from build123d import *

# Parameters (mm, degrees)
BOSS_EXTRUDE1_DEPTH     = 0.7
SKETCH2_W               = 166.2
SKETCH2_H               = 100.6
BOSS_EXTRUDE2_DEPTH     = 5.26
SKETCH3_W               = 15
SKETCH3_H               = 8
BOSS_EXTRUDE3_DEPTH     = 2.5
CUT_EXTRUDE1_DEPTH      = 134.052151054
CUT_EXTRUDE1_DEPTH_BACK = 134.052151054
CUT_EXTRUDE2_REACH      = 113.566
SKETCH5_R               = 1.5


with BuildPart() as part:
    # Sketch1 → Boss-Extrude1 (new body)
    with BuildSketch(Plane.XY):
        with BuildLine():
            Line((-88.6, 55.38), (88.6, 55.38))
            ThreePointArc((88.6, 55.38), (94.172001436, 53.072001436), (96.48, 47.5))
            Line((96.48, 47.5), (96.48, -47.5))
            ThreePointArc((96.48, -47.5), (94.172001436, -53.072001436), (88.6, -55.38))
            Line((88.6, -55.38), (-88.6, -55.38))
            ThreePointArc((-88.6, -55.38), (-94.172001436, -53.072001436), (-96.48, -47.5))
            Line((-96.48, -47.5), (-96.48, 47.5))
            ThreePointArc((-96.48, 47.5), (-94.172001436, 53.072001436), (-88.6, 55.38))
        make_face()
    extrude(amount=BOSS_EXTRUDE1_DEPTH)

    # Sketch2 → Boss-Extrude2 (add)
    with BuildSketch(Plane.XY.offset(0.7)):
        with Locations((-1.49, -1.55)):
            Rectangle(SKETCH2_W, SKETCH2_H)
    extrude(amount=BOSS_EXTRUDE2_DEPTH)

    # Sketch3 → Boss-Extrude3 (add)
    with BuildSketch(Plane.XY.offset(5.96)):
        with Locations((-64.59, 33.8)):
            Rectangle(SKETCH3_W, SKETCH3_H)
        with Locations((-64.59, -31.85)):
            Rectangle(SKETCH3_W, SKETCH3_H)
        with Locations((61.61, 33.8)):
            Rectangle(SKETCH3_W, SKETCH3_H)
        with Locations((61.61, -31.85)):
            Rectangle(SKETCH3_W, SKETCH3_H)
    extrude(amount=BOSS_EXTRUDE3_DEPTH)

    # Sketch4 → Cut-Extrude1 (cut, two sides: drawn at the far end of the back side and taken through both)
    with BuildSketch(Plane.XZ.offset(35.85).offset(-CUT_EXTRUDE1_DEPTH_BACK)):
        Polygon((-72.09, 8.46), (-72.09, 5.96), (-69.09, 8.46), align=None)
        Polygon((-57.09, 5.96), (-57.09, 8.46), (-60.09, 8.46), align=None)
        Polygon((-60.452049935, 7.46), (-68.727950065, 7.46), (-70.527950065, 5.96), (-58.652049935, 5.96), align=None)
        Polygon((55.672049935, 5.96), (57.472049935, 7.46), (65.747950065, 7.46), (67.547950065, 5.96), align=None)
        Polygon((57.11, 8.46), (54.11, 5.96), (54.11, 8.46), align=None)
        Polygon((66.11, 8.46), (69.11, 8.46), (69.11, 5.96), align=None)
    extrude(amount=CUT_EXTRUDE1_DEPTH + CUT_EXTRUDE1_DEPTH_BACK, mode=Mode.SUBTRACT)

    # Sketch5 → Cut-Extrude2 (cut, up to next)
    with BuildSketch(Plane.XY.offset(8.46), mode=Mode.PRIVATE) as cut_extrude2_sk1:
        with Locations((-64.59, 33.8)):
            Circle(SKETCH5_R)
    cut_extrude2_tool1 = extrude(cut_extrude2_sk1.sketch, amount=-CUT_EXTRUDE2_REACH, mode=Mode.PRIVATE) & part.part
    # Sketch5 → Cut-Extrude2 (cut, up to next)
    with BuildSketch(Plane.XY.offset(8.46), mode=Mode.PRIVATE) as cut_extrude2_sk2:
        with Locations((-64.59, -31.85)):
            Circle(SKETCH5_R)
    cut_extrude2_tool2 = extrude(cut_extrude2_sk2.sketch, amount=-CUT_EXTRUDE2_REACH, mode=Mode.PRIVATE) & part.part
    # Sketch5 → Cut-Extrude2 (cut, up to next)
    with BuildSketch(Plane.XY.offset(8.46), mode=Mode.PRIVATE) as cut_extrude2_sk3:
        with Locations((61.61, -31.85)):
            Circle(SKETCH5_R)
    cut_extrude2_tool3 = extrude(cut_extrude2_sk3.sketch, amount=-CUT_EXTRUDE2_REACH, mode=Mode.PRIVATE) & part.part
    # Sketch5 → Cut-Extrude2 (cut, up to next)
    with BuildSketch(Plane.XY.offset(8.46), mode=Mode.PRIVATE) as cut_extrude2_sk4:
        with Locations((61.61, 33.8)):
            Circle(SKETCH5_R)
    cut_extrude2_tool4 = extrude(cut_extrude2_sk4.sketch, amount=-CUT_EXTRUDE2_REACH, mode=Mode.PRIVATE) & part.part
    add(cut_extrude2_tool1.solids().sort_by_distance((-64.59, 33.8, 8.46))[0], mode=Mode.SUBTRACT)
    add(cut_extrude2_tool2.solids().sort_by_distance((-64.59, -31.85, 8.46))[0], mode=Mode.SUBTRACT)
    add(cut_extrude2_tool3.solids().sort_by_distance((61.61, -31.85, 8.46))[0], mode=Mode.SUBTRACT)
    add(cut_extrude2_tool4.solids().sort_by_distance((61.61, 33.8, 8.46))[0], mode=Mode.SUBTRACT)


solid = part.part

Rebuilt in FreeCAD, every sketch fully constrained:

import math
import FreeCAD as App
import Part
import Sketcher
from FreeCAD import Vector
Q = App.Units.Quantity

doc = App.newDocument("Part")
params = doc.addObject("Spreadsheet::Sheet", "Params")
for row, (alias, value) in enumerate([
    ("sketch1_height", "95 mm"),
    ("sketch1_radius", "7.88 mm"),
    ("sketch1_width", "177.2 mm"),
    ("pad1_length", "0.7 mm"),
    ("sketch2_width", "166.2 mm"),
    ("sketch2_height", "100.6 mm"),
    ("pad2_length", "5.26 mm"),
    ("sketch3_width", "15 mm"),
    ("sketch3_height", "8 mm"),
    ("pad3_length", "2.5 mm"),
    ("sketch4_width", "3 mm"),
    ("sketch4_height", "2.5 mm"),
    ("sketch5_diameter", "3 mm"),
    ("sketch6_diameter", "3 mm"),
    ("sketch7_diameter", "3 mm"),
    ("sketch8_diameter", "3 mm"),
], start=1):
    params.set(f"A{row}", alias)
    params.set(f"B{row}", "=" + value)
    params.setAlias(f"B{row}", alias)

body = doc.addObject("PartDesign::Body", "Body")

sketch1 = body.newObject("Sketcher::SketchObject", "Sketch")
sketch1.AttachmentSupport = (doc.getObject("XY_Plane"), [""])
sketch1.MapMode = "FlatFace"
sketch1.addGeometry([
    Part.LineSegment(Vector(89, 55, 0), Vector(-89, 55, 0)),
    Part.ArcOfCircle(Part.Circle(Vector(-89, 48, 0), Vector(0, 0, 1), 8), math.radians(90), math.radians(180)),
    Part.LineSegment(Vector(-96, 48, 0), Vector(-96, -48, 0)),
    Part.ArcOfCircle(Part.Circle(Vector(-89, -48, 0), Vector(0, 0, 1), 8), math.radians(180), math.radians(270)),
    Part.LineSegment(Vector(-89, -55, 0), Vector(89, -55, 0)),
    Part.ArcOfCircle(Part.Circle(Vector(89, -48, 0), Vector(0, 0, 1), 8), math.radians(-90), math.radians(0)),
    Part.LineSegment(Vector(96, -48, 0), Vector(96, 48, 0)),
    Part.ArcOfCircle(Part.Circle(Vector(89, 48, 0), Vector(0, 0, 1), 8), math.radians(0), math.radians(90)),
], False)
sketch1.addConstraint([
    Sketcher.Constraint("Tangent", 0, 2, 1, 1),
    Sketcher.Constraint("Tangent", 1, 2, 2, 1),
    Sketcher.Constraint("Tangent", 2, 2, 3, 1),
    Sketcher.Constraint("Tangent", 3, 2, 4, 1),
    Sketcher.Constraint("Tangent", 4, 2, 5, 1),
    Sketcher.Constraint("Tangent", 5, 2, 6, 1),
    Sketcher.Constraint("Tangent", 6, 2, 7, 1),
    Sketcher.Constraint("Tangent", 7, 2, 0, 1),
    Sketcher.Constraint("Horizontal", 0),
    Sketcher.Constraint("Vertical", 2),
    Sketcher.Constraint("Horizontal", 4),
    Sketcher.Constraint("Vertical", 6),
    Sketcher.Constraint("Equal", 1, 3),
    Sketcher.Constraint("Equal", 3, 5),
    Sketcher.Constraint("Equal", 5, 7),
    Sketcher.Constraint("Symmetric", 1, 3, 5, 3, -1, 1),
    Sketcher.Constraint("DistanceY", 2, 2, 2, 1, Q("95 mm")),
    Sketcher.Constraint("Radius", 1, Q("7.88 mm")),
    Sketcher.Constraint("DistanceX", 0, 2, 0, 1, Q("177.2 mm")),
])
sketch1.setExpression("Constraints[16]", "Params.sketch1_height")
sketch1.setExpression("Constraints[17]", "Params.sketch1_radius")
sketch1.setExpression("Constraints[18]", "Params.sketch1_width")
pad1 = body.newObject("PartDesign::Pad", "Pad")
pad1.Profile = sketch1
pad1.setExpression("Length", "Params.pad1_length")

sketch2 = body.newObject("Sketcher::SketchObject", "Sketch001")
sketch2.AttachmentSupport = (doc.getObject("XY_Plane"), [""])
sketch2.MapMode = "FlatFace"
sketch2.AttachmentOffset = App.Placement(Vector(0, 0, 0.7), App.Rotation())
sketch2.addGeometry([
    Part.LineSegment(Vector(-85, 49, 0), Vector(-85, -52, 0)),
    Part.LineSegment(Vector(-85, -52, 0), Vector(82, -52, 0)),
    Part.LineSegment(Vector(82, -52, 0), Vector(82, 49, 0)),
    Part.LineSegment(Vector(82, 49, 0), Vector(-85, 49, 0)),
], False)
sketch2.addConstraint([
    Sketcher.Constraint("Coincident", 0, 2, 1, 1),
    Sketcher.Constraint("Coincident", 1, 2, 2, 1),
    Sketcher.Constraint("Coincident", 2, 2, 3, 1),
    Sketcher.Constraint("Coincident", 3, 2, 0, 1),
    Sketcher.Constraint("Vertical", 0),
    Sketcher.Constraint("Horizontal", 1),
    Sketcher.Constraint("Vertical", 2),
    Sketcher.Constraint("Horizontal", 3),
    Sketcher.Constraint("DistanceX", 1, 1, 1, 2, Q("166.2 mm")),
    Sketcher.Constraint("DistanceY", 0, 2, 0, 1, Q("100.6 mm")),
    Sketcher.Constraint("DistanceX", 0, 2, -1, 1, Q("84.59 mm")),
    Sketcher.Constraint("DistanceY", 0, 2, -1, 1, Q("51.85 mm")),
])
sketch2.setExpression("Constraints[8]", "Params.sketch2_width")
sketch2.setExpression("Constraints[9]", "Params.sketch2_height")
pad2 = body.newObject("PartDesign::Pad", "Pad001")
pad2.Profile = sketch2
pad2.setExpression("Length", "Params.pad2_length")

sketch3 = body.newObject("Sketcher::SketchObject", "Sketch002")
sketch3.AttachmentSupport = (doc.getObject("XY_Plane"), [""])
sketch3.MapMode = "FlatFace"
sketch3.AttachmentOffset = App.Placement(Vector(0, 0, 5.96), App.Rotation())
sketch3.addGeometry([
    Part.LineSegment(Vector(-72, 38, 0), Vector(-72, 30, 0)),
    Part.LineSegment(Vector(-72, 30, 0), Vector(-57, 30, 0)),
    Part.LineSegment(Vector(-57, 30, 0), Vector(-57, 38, 0)),
    Part.LineSegment(Vector(-57, 38, 0), Vector(-72, 38, 0)),
    Part.LineSegment(Vector(-72, -28, 0), Vector(-72, -36, 0)),
    Part.LineSegment(Vector(-72, -36, 0), Vector(-57, -36, 0)),
    Part.LineSegment(Vector(-57, -36, 0), Vector(-57, -28, 0)),
    Part.LineSegment(Vector(-57, -28, 0), Vector(-72, -28, 0)),
    Part.LineSegment(Vector(54, 38, 0), Vector(54, 30, 0)),
    Part.LineSegment(Vector(54, 30, 0), Vector(69, 30, 0)),
    Part.LineSegment(Vector(69, 30, 0), Vector(69, 38, 0)),
    Part.LineSegment(Vector(69, 38, 0), Vector(54, 38, 0)),
    Part.LineSegment(Vector(54, -28, 0), Vector(54, -36, 0)),
    Part.LineSegment(Vector(54, -36, 0), Vector(69, -36, 0)),
    Part.LineSegment(Vector(69, -36, 0), Vector(69, -28, 0)),
    Part.LineSegment(Vector(69, -28, 0), Vector(54, -28, 0)),
], False)
sketch3.addConstraint([
    Sketcher.Constraint("Coincident", 0, 2, 1, 1),
    Sketcher.Constraint("Coincident", 1, 2, 2, 1),
    Sketcher.Constraint("Coincident", 2, 2, 3, 1),
    Sketcher.Constraint("Coincident", 3, 2, 0, 1),
    Sketcher.Constraint("Coincident", 4, 2, 5, 1),
    Sketcher.Constraint("Coincident", 5, 2, 6, 1),
    Sketcher.Constraint("Coincident", 6, 2, 7, 1),
    Sketcher.Constraint("Coincident", 7, 2, 4, 1),
    Sketcher.Constraint("Coincident", 8, 2, 9, 1),
    Sketcher.Constraint("Coincident", 9, 2, 10, 1),
    Sketcher.Constraint("Coincident", 10, 2, 11, 1),
    Sketcher.Constraint("Coincident", 11, 2, 8, 1),
    Sketcher.Constraint("Coincident", 12, 2, 13, 1),
    Sketcher.Constraint("Coincident", 13, 2, 14, 1),
    Sketcher.Constraint("Coincident", 14, 2, 15, 1),
    Sketcher.Constraint("Coincident", 15, 2, 12, 1),
    Sketcher.Constraint("Vertical", 0),
    Sketcher.Constraint("Horizontal", 1),
    Sketcher.Constraint("Vertical", 2),
    Sketcher.Constraint("Horizontal", 3),
    Sketcher.Constraint("Vertical", 4),
    Sketcher.Constraint("Horizontal", 5),
    Sketcher.Constraint("Vertical", 6),
    Sketcher.Constraint("Horizontal", 7),
    Sketcher.Constraint("Vertical", 8),
    Sketcher.Constraint("Horizontal", 9),
    Sketcher.Constraint("Vertical", 10),
    Sketcher.Constraint("Horizontal", 11),
    Sketcher.Constraint("Vertical", 12),
    Sketcher.Constraint("Horizontal", 13),
    Sketcher.Constraint("Vertical", 14),
    Sketcher.Constraint("Horizontal", 15),
    Sketcher.Constraint("Horizontal", 1, 2, 8, 2),
    Sketcher.Constraint("Horizontal", 3, 2, 10, 2),
    Sketcher.Constraint("Horizontal", 5, 2, 12, 2),
    Sketcher.Constraint("Horizontal", 7, 2, 14, 2),
    Sketcher.Constraint("Vertical", 3, 2, 4, 2),
    Sketcher.Constraint("Vertical", 2, 2, 5, 2),
    Sketcher.Constraint("Vertical", 11, 2, 12, 2),
    Sketcher.Constraint("Vertical", 10, 2, 13, 2),
    Sketcher.Constraint("Equal", 7, 9),
    Sketcher.Constraint("Equal", 2, 4),
    Sketcher.Constraint("DistanceX", 1, 1, 1, 2, Q("15 mm")),
    Sketcher.Constraint("DistanceY", 0, 2, 0, 1, Q("8 mm")),
    Sketcher.Constraint("DistanceY", -1, 1, 0, 2, Q("29.8 mm")),
    Sketcher.Constraint("DistanceX", 1, 2, 8, 2, Q("111.2 mm")),
    Sketcher.Constraint("DistanceX", 0, 2, -1, 1, Q("72.09 mm")),
    Sketcher.Constraint("DistanceY", 4, 2, -1, 1, Q("35.85 mm")),
])
sketch3.setExpression("Constraints[42]", "Params.sketch3_width")
sketch3.setExpression("Constraints[43]", "Params.sketch3_height")
pad3 = body.newObject("PartDesign::Pad", "Pad002")
pad3.Profile = sketch3
pad3.setExpression("Length", "Params.pad3_length")

sketch4 = body.newObject("Sketcher::SketchObject", "Sketch003")
sketch4.AttachmentSupport = (doc.getObject("XZ_Plane"), [""])
sketch4.MapMode = "FlatFace"
sketch4.AttachmentOffset = App.Placement(Vector(0, 0, 35.85), App.Rotation())
sketch4.addGeometry([
    Part.LineSegment(Vector(-72.1, 8.5, 0), Vector(-72.1, 6, 0)),
    Part.LineSegment(Vector(-72.1, 6, 0), Vector(-69.1, 8.5, 0)),
    Part.LineSegment(Vector(-69.1, 8.5, 0), Vector(-72.1, 8.5, 0)),
    Part.LineSegment(Vector(-57.1, 6, 0), Vector(-57.1, 8.5, 0)),
    Part.LineSegment(Vector(-57.1, 8.5, 0), Vector(-60.1, 8.5, 0)),
    Part.LineSegment(Vector(-60.1, 8.5, 0), Vector(-57.1, 6, 0)),
    Part.LineSegment(Vector(-60.5, 7.5, 0), Vector(-68.7, 7.5, 0)),
    Part.LineSegment(Vector(-68.7, 7.5, 0), Vector(-70.5, 6, 0)),
    Part.LineSegment(Vector(-70.5, 6, 0), Vector(-58.7, 6, 0)),
    Part.LineSegment(Vector(-58.7, 6, 0), Vector(-60.5, 7.5, 0)),
    Part.LineSegment(Vector(57.5, 7.5, 0), Vector(55.7, 6, 0)),
    Part.LineSegment(Vector(55.7, 6, 0), Vector(67.5, 6, 0)),
    Part.LineSegment(Vector(67.5, 6, 0), Vector(65.7, 7.5, 0)),
    Part.LineSegment(Vector(65.7, 7.5, 0), Vector(57.5, 7.5, 0)),
    Part.LineSegment(Vector(54.1, 6, 0), Vector(57.1, 8.5, 0)),
    Part.LineSegment(Vector(57.1, 8.5, 0), Vector(54.1, 8.5, 0)),
    Part.LineSegment(Vector(54.1, 8.5, 0), Vector(54.1, 6, 0)),
    Part.LineSegment(Vector(69.1, 8.5, 0), Vector(66.1, 8.5, 0)),
    Part.LineSegment(Vector(66.1, 8.5, 0), Vector(69.1, 6, 0)),
    Part.LineSegment(Vector(69.1, 6, 0), Vector(69.1, 8.5, 0)),
], False)
sketch4.addConstraint([
    Sketcher.Constraint("Coincident", 0, 2, 1, 1),
    Sketcher.Constraint("Coincident", 1, 2, 2, 1),
    Sketcher.Constraint("Coincident", 2, 2, 0, 1),
    Sketcher.Constraint("Coincident", 3, 2, 4, 1),
    Sketcher.Constraint("Coincident", 4, 2, 5, 1),
    Sketcher.Constraint("Coincident", 5, 2, 3, 1),
    Sketcher.Constraint("Coincident", 6, 2, 7, 1),
    Sketcher.Constraint("Coincident", 7, 2, 8, 1),
    Sketcher.Constraint("Coincident", 8, 2, 9, 1),
    Sketcher.Constraint("Coincident", 9, 2, 6, 1),
    Sketcher.Constraint("Coincident", 10, 2, 11, 1),
    Sketcher.Constraint("Coincident", 11, 2, 12, 1),
    Sketcher.Constraint("Coincident", 12, 2, 13, 1),
    Sketcher.Constraint("Coincident", 13, 2, 10, 1),
    Sketcher.Constraint("Coincident", 14, 2, 15, 1),
    Sketcher.Constraint("Coincident", 15, 2, 16, 1),
    Sketcher.Constraint("Coincident", 16, 2, 14, 1),
    Sketcher.Constraint("Coincident", 17, 2, 18, 1),
    Sketcher.Constraint("Coincident", 18, 2, 19, 1),
    Sketcher.Constraint("Coincident", 19, 2, 17, 1),
    Sketcher.Constraint("Vertical", 0),
    Sketcher.Constraint("Horizontal", 2),
    Sketcher.Constraint("Vertical", 3),
    Sketcher.Constraint("Horizontal", 4),
    Sketcher.Constraint("Horizontal", 6),
    Sketcher.Constraint("Horizontal", 8),
    Sketcher.Constraint("Horizontal", 11),
    Sketcher.Constraint("Horizontal", 13),
    Sketcher.Constraint("Horizontal", 15),
    Sketcher.Constraint("Vertical", 16),
    Sketcher.Constraint("Horizontal", 17),
    Sketcher.Constraint("Vertical", 19),
    Sketcher.Constraint("Parallel", 1, 7),
    Sketcher.Constraint("Parallel", 5, 9),
    Sketcher.Constraint("Parallel", 7, 10),
    Sketcher.Constraint("Parallel", 9, 12),
    Sketcher.Constraint("Parallel", 10, 14),
    Sketcher.Constraint("Parallel", 12, 18),
    Sketcher.Constraint("Horizontal", 2, 2, 3, 2),
    Sketcher.Constraint("Horizontal", 0, 2, 5, 2),
    Sketcher.Constraint("Horizontal", 5, 2, 7, 2),
    Sketcher.Constraint("Horizontal", 8, 2, 10, 2),
    Sketcher.Constraint("Horizontal", 9, 2, 12, 2),
    Sketcher.Constraint("Horizontal", 4, 2, 14, 2),
    Sketcher.Constraint("Horizontal", 11, 2, 16, 2),
    Sketcher.Constraint("Horizontal", 15, 2, 17, 2),
    Sketcher.Constraint("Horizontal", 16, 2, 18, 2),
    Sketcher.Constraint("Equal", 2, 4),
    Sketcher.Constraint("Equal", 8, 11),
    Sketcher.Constraint("DistanceX", 2, 2, 2, 1, Q("3 mm")),
    Sketcher.Constraint("DistanceY", 0, 2, 0, 1, Q("2.5 mm")),
    Sketcher.Constraint("DistanceX", 1, 2, 3, 2, Q("12 mm")),
    Sketcher.Constraint("DistanceY", 6, 2, 1, 2, Q("1 mm")),
    Sketcher.Constraint("DistanceX", 14, 2, 17, 2, Q("9 mm")),
    Sketcher.Constraint("DistanceX", 8, 2, 11, 2, Q("126.2 mm")),
    Sketcher.Constraint("DistanceX", 3, 2, 14, 2, Q("114.2 mm")),
    Sketcher.Constraint("DistanceX", 0, 2, -1, 1, Q("72.09 mm")),
    Sketcher.Constraint("DistanceY", -1, 1, 0, 2, Q("5.96 mm")),
    Sketcher.Constraint("DistanceX", 6, 2, 6, 1, Q("8.2759 mm")),
    Sketcher.Constraint("DistanceX", 6, 2, -1, 1, Q("68.72795 mm")),
])
sketch4.setExpression("Constraints[49]", "Params.sketch4_width")
sketch4.setExpression("Constraints[50]", "Params.sketch4_height")
pocket1 = body.newObject("PartDesign::Pocket", "Pocket")
pocket1.Profile = sketch4
pocket1.Type = "ThroughAll"
pocket1.Midplane = True

sketch5 = body.newObject("Sketcher::SketchObject", "Sketch004")
sketch5.AttachmentSupport = (doc.getObject("XY_Plane"), [""])
sketch5.MapMode = "FlatFace"
sketch5.AttachmentOffset = App.Placement(Vector(0, 0, 8.46), App.Rotation())
sketch5.addGeometry(Part.Circle(Vector(-64.6, 33.8, 0), Vector(0, 0, 1), 1.5), False)
sketch5.addConstraint([
    Sketcher.Constraint("Diameter", 0, Q("3 mm")),
    Sketcher.Constraint("DistanceY", -1, 1, 0, 3, Q("33.8 mm")),
    Sketcher.Constraint("DistanceX", 0, 3, -1, 1, Q("64.59 mm")),
])
sketch5.setExpression("Constraints[0]", "Params.sketch5_diameter")
pocket2 = body.newObject("PartDesign::Pocket", "Pocket001")
pocket2.Profile = sketch5
pocket2.Type = "UpToFirst"

sketch6 = body.newObject("Sketcher::SketchObject", "Sketch005")
sketch6.AttachmentSupport = (doc.getObject("XY_Plane"), [""])
sketch6.MapMode = "FlatFace"
sketch6.AttachmentOffset = App.Placement(Vector(0, 0, 8.46), App.Rotation())
sketch6.addGeometry(Part.Circle(Vector(-64.6, -31.9, 0), Vector(0, 0, 1), 1.5), False)
sketch6.addConstraint([
    Sketcher.Constraint("Diameter", 0, Q("3 mm")),
    Sketcher.Constraint("DistanceX", 0, 3, -1, 1, Q("64.59 mm")),
    Sketcher.Constraint("DistanceY", 0, 3, -1, 1, Q("31.85 mm")),
])
sketch6.setExpression("Constraints[0]", "Params.sketch6_diameter")
pocket3 = body.newObject("PartDesign::Pocket", "Pocket002")
pocket3.Profile = sketch6
pocket3.Type = "UpToFirst"

sketch7 = body.newObject("Sketcher::SketchObject", "Sketch006")
sketch7.AttachmentSupport = (doc.getObject("XY_Plane"), [""])
sketch7.MapMode = "FlatFace"
sketch7.AttachmentOffset = App.Placement(Vector(0, 0, 8.46), App.Rotation())
sketch7.addGeometry(Part.Circle(Vector(61.6, -31.9, 0), Vector(0, 0, 1), 1.5), False)
sketch7.addConstraint([
    Sketcher.Constraint("Diameter", 0, Q("3 mm")),
    Sketcher.Constraint("DistanceX", -1, 1, 0, 3, Q("61.61 mm")),
    Sketcher.Constraint("DistanceY", 0, 3, -1, 1, Q("31.85 mm")),
])
sketch7.setExpression("Constraints[0]", "Params.sketch7_diameter")
pocket4 = body.newObject("PartDesign::Pocket", "Pocket003")
pocket4.Profile = sketch7
pocket4.Type = "UpToFirst"

sketch8 = body.newObject("Sketcher::SketchObject", "Sketch007")
sketch8.AttachmentSupport = (doc.getObject("XY_Plane"), [""])
sketch8.MapMode = "FlatFace"
sketch8.AttachmentOffset = App.Placement(Vector(0, 0, 8.46), App.Rotation())
sketch8.addGeometry(Part.Circle(Vector(61.6, 33.8, 0), Vector(0, 0, 1), 1.5), False)
sketch8.addConstraint([
    Sketcher.Constraint("Diameter", 0, Q("3 mm")),
    Sketcher.Constraint("DistanceY", -1, 1, 0, 3, Q("33.8 mm")),
    Sketcher.Constraint("DistanceX", -1, 1, 0, 3, Q("61.61 mm")),
])
sketch8.setExpression("Constraints[0]", "Params.sketch8_diameter")
pocket5 = body.newObject("PartDesign::Pocket", "Pocket004")
pocket5.Profile = sketch8
pocket5.Type = "UpToFirst"

doc.recompute()
